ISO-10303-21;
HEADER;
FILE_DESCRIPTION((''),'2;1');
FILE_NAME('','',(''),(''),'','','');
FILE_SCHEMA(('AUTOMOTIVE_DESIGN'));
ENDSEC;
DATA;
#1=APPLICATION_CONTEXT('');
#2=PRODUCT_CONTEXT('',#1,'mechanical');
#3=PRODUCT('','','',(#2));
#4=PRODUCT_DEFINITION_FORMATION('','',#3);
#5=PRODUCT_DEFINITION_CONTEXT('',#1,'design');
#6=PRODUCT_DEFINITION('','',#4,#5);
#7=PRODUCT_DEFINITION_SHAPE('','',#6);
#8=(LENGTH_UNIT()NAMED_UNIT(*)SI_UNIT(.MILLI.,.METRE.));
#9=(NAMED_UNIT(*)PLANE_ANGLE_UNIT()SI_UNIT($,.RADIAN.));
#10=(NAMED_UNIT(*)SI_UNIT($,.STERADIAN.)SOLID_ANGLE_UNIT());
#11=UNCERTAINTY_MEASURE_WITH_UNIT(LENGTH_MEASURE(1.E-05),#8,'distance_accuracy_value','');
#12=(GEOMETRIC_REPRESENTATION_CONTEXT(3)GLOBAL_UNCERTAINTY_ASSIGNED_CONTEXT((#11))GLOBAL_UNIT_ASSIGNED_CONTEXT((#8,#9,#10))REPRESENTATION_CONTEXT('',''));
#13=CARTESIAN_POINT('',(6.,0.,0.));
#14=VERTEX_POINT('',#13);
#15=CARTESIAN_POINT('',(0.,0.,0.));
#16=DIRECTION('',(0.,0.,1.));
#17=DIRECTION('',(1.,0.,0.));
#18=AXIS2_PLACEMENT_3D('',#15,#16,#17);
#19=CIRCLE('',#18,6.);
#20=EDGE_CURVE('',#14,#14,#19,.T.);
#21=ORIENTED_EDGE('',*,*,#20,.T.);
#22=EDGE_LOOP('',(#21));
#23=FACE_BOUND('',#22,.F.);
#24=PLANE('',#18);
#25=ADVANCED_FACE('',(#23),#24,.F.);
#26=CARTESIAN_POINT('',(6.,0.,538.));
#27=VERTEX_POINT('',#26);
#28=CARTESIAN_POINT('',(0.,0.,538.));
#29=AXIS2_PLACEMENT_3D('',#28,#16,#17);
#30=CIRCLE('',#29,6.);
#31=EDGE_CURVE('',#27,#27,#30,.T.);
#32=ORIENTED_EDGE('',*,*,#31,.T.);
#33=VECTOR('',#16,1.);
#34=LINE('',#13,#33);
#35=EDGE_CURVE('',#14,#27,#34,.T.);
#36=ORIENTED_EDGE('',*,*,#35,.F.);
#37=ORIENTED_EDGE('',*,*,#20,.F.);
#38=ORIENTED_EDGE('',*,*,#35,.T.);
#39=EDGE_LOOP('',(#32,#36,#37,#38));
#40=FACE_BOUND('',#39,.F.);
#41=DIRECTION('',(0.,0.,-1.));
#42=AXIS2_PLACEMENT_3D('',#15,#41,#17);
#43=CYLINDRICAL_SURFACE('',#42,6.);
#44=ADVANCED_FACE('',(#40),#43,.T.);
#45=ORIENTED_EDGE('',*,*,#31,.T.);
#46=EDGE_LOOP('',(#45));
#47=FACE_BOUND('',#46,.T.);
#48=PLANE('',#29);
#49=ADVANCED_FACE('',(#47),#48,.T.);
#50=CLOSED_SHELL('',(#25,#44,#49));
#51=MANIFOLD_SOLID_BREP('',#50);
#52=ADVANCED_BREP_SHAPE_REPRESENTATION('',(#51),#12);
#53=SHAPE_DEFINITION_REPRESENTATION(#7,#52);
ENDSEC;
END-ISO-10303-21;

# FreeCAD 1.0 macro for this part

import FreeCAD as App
import Part
import Sketcher
from FreeCAD import Vector
Q = App.Units.Quantity

doc = App.newDocument("Part")
body = doc.addObject("PartDesign::Body", "Body")

sketch1 = doc.addObject("Sketcher::SketchObject", "Sketch")
body.addObject(sketch1)
sketch1.AttachmentSupport = (doc.XY_Plane, [""])
sketch1.MapMode = "FlatFace"
sketch1.addGeometry(Part.Circle(Vector(0, 0, 0), Vector(0, 0, 1), 6), False)
sketch1.addConstraint([
    Sketcher.Constraint("Coincident", 0, 3, -1, 1),
    Sketcher.Constraint("Diameter", 0, Q("12 mm")),
])
pad1 = doc.addObject("PartDesign::Pad", "Pad")
body.addObject(pad1)
pad1.Profile = sketch1
pad1.Length = 538

doc.recompute()
